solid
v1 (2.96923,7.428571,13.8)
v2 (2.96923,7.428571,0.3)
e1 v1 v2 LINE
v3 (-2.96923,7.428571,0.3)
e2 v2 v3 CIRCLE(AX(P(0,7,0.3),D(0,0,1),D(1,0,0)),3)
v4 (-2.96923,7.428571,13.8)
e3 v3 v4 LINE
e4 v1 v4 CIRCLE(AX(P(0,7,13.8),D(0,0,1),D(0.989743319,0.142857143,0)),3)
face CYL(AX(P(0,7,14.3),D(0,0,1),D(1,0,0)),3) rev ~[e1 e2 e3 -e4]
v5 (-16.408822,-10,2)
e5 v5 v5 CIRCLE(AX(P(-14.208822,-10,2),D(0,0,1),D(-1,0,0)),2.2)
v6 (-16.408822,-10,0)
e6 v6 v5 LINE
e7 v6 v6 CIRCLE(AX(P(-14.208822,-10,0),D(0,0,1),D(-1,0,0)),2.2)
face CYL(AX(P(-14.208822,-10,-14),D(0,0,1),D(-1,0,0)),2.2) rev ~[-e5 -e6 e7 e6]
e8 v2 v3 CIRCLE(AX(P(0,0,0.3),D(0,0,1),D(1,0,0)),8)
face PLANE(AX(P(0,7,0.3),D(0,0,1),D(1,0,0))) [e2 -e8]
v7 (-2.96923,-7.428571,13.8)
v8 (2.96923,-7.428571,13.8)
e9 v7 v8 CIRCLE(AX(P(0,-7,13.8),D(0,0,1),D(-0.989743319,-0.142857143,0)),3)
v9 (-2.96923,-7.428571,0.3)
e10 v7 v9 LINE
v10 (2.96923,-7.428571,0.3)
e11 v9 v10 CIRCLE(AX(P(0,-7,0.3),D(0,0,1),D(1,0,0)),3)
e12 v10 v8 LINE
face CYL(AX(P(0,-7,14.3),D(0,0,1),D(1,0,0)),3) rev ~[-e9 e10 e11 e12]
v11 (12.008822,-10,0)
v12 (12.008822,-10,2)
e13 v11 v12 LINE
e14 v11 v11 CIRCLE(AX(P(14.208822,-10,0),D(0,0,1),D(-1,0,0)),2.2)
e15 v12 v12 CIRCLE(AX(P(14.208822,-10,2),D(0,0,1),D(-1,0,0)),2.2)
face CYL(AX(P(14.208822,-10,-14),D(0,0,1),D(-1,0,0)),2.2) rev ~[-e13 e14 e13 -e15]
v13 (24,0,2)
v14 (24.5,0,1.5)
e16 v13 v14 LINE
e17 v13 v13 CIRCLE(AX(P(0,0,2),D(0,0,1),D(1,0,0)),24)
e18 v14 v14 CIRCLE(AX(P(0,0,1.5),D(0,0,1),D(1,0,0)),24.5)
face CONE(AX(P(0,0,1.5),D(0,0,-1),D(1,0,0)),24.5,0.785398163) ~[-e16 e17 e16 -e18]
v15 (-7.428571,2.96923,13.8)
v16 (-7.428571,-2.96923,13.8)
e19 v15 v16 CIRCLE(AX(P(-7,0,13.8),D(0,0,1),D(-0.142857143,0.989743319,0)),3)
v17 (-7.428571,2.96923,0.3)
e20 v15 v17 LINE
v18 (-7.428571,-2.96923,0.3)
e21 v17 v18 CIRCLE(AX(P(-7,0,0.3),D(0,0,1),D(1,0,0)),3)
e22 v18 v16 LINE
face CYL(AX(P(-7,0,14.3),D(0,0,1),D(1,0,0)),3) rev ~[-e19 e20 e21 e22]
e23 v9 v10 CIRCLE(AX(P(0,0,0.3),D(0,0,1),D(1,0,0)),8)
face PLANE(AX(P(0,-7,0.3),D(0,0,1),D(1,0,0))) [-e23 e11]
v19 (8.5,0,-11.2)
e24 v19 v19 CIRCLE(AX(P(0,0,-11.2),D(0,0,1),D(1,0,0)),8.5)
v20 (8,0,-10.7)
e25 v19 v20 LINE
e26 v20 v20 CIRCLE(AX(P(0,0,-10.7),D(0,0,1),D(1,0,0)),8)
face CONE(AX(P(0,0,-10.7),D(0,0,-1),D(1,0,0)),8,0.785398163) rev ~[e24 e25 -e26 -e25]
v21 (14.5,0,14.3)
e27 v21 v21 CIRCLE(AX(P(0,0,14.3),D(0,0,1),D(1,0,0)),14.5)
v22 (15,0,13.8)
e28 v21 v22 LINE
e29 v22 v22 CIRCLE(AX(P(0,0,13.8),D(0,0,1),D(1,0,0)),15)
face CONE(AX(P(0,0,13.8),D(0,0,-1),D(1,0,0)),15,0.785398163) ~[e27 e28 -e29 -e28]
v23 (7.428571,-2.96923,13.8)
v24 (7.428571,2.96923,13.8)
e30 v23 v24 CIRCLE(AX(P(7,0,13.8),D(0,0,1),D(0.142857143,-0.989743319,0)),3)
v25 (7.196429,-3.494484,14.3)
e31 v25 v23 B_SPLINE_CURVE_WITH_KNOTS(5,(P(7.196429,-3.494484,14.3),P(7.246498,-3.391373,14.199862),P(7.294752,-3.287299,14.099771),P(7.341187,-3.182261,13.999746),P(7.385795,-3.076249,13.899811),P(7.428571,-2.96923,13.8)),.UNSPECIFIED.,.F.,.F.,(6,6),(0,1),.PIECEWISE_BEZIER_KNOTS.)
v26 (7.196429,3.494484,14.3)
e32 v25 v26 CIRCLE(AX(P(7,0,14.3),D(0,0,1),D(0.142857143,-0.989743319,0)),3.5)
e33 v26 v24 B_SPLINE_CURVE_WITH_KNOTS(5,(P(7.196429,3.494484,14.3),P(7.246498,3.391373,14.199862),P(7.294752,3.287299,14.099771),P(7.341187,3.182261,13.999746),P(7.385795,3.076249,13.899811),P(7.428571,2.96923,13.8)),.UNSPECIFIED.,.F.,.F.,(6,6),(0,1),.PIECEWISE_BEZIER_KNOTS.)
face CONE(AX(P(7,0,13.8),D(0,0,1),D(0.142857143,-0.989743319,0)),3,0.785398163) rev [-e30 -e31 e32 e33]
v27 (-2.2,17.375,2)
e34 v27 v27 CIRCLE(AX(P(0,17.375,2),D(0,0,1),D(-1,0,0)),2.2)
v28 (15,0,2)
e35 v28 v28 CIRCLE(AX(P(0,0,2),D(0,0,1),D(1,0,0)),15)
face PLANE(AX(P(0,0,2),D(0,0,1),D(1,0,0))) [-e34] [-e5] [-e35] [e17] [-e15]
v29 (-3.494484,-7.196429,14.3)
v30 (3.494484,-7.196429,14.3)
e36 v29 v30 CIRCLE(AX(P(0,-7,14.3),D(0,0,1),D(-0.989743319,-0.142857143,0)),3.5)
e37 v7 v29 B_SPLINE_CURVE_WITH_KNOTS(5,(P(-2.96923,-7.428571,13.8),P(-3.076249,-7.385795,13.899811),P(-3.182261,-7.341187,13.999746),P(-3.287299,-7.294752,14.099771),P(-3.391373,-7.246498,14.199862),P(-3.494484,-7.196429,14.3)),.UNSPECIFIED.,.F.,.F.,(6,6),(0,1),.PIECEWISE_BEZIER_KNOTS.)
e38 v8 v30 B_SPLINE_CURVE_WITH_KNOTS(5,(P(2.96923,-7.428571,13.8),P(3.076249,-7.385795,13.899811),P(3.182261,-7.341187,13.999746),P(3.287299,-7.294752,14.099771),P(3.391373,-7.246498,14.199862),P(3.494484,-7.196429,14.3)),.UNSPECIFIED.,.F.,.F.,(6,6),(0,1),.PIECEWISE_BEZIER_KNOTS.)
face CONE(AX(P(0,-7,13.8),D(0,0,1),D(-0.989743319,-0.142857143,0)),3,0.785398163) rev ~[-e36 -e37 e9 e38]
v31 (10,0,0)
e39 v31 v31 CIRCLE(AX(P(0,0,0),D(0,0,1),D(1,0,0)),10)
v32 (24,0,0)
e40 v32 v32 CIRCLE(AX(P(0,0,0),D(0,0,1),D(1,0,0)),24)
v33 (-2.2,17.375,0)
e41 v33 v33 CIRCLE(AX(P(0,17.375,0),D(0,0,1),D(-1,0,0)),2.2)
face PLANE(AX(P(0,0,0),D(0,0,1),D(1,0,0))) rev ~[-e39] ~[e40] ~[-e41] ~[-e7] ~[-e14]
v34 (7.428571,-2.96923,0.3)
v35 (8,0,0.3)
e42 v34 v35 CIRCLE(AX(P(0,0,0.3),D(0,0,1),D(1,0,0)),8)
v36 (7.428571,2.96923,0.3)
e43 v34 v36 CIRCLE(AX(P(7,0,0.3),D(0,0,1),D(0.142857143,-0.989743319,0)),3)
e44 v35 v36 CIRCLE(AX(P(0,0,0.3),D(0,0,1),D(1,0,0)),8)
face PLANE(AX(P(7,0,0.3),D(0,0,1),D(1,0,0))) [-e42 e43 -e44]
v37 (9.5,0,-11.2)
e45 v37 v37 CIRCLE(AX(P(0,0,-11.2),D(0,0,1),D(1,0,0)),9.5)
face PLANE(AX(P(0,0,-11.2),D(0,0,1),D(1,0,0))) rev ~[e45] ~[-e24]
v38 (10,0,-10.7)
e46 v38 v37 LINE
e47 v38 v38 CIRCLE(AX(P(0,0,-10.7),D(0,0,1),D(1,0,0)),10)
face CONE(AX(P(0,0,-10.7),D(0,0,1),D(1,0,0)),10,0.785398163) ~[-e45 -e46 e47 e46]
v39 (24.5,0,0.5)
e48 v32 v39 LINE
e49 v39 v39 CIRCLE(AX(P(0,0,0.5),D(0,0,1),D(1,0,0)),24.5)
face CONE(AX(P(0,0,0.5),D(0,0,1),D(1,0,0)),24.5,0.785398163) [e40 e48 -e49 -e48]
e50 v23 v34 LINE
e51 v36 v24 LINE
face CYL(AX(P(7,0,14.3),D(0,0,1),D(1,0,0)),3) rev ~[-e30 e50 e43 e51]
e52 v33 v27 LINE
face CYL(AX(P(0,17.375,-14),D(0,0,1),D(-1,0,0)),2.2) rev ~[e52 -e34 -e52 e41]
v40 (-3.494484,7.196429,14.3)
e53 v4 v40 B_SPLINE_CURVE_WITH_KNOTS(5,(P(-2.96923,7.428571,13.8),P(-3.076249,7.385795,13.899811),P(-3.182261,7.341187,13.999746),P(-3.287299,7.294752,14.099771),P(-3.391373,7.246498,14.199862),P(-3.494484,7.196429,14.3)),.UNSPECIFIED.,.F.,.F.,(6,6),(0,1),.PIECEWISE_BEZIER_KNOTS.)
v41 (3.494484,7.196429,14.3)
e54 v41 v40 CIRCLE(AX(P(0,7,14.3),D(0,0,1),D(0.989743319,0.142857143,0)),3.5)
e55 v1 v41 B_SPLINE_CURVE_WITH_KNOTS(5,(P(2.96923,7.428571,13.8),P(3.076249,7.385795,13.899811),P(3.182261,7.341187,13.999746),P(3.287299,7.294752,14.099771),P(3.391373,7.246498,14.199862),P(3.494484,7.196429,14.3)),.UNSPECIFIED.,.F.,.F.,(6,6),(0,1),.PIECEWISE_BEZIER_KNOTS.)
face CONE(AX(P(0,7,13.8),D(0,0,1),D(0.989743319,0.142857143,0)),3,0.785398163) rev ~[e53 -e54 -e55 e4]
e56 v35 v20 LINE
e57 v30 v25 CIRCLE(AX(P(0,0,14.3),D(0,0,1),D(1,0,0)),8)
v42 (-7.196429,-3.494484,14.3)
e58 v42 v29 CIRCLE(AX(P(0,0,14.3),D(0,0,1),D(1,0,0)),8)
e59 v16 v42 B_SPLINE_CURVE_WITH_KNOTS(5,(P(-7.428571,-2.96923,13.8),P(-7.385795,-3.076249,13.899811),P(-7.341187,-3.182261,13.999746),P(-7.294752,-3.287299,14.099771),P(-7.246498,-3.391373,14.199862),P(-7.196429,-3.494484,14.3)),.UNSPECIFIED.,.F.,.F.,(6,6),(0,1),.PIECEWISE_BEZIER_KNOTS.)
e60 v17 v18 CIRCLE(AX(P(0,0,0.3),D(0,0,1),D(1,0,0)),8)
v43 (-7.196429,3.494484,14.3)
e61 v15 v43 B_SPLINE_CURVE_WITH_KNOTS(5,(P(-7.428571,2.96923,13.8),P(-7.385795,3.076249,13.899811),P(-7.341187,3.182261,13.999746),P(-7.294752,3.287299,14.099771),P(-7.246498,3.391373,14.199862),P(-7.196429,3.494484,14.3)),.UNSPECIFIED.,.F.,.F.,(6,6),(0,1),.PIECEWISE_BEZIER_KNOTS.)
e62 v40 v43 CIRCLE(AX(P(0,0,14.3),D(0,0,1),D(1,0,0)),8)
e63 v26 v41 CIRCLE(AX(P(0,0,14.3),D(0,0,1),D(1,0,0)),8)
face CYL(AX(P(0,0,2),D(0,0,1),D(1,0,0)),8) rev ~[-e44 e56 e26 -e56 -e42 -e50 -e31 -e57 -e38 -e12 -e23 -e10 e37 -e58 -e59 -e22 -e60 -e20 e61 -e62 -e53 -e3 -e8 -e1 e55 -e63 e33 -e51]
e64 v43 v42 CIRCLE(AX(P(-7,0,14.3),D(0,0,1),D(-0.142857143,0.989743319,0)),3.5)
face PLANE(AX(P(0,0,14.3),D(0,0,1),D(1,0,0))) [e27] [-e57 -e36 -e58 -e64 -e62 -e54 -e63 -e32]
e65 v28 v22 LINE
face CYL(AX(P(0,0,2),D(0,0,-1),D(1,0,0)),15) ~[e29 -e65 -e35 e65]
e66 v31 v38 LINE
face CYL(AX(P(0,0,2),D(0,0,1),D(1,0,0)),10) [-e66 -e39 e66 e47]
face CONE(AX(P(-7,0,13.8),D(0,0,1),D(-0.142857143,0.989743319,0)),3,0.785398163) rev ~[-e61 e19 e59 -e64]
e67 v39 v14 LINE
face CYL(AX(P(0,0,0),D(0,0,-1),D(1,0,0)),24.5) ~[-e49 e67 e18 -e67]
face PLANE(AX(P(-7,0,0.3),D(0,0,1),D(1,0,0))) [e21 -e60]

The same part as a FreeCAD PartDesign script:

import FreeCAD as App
import Part
import Sketcher

V = App.Vector
Q = App.Units.Quantity


def edges_at(feature, points):
    """Names of the edges that pass closest to the given points."""
    edges = feature.Shape.Edges
    near = lambda p: min(range(len(edges)), key=lambda i: edges[i].distToShape(Part.Vertex(*p))[0])
    return sorted({f"Edge{near(p) + 1}" for p in points})

doc = App.newDocument("Part")
body = doc.addObject("PartDesign::Body", "Body")

sketch1 = body.newObject("Sketcher::SketchObject", "Sketch")
sketch1.AttachmentSupport = (doc.getObject("XY_Plane"), [""])
sketch1.MapMode = "FlatFace"
sketch1.addGeometry([
    Part.Circle(V(0, 0, 0), V(0, 0, 1), 24),
    Part.Circle(V(0, 0, 0), V(0, 0, 1), 10),
], False)
sketch1.addConstraint([
    Sketcher.Constraint("Coincident", 0, 3, -1, 1),
    Sketcher.Constraint("Coincident", 1, 3, -1, 1),
    Sketcher.Constraint("Diameter", 0, Q("49 mm")),
    Sketcher.Constraint("Diameter", 1, Q("20 mm")),
])
pad1 = body.newObject("PartDesign::Pad", "Pad")
pad1.Profile = sketch1
pad1.Length = 2

sketch2 = body.newObject("Sketcher::SketchObject", "Sketch001")
sketch2.AttachmentSupport = (doc.getObject("XY_Plane"), [""])
sketch2.MapMode = "FlatFace"
sketch2.AttachmentOffset = App.Placement(V(0, 0, 2), App.Rotation())
sketch2.addGeometry([
    Part.Circle(V(0, 0, 0), V(0, 0, 1), 15),
    Part.Circle(V(0, 0, 0), V(0, 0, 1), 8),
], False)
sketch2.addConstraint([
    Sketcher.Constraint("Coincident", 0, 3, -1, 1),
    Sketcher.Constraint("Coincident", 1, 3, -1, 1),
    Sketcher.Constraint("Diameter", 0, Q("30 mm")),
    Sketcher.Constraint("Diameter", 1, Q("16 mm")),
])
pad2 = body.newObject("PartDesign::Pad", "Pad001")
pad2.Profile = sketch2
pad2.Length = 12.3

sketch3 = body.newObject("Sketcher::SketchObject", "Sketch002")
sketch3.AttachmentSupport = (doc.getObject("XY_Plane"), [""])
sketch3.MapMode = "FlatFace"
sketch3.AttachmentOffset = App.Placement(V(0, 0, 2), App.Rotation())
sketch3.addGeometry([
    Part.Circle(V(0, 0, 0), V(0, 0, 1), 10),
    Part.Circle(V(0, 0, 0), V(0, 0, 1), 8),
], False)
sketch3.addConstraint([
    Sketcher.Constraint("Coincident", 0, 3, -1, 1),
    Sketcher.Constraint("Coincident", 1, 3, -1, 1),
    Sketcher.Constraint("Diameter", 0, Q("20 mm")),
    Sketcher.Constraint("Diameter", 1, Q("16 mm")),
])
pad3 = body.newObject("PartDesign::Pad", "Pad002")
pad3.Profile = sketch3
pad3.Length = 13.2
pad3.Reversed = True

sketch4 = body.newObject("Sketcher::SketchObject", "Sketch003")
sketch4.AttachmentSupport = (doc.getObject("XY_Plane"), [""])
sketch4.MapMode = "FlatFace"
sketch4.addGeometry([
    Part.Circle(V(0, 17.4, 0), V(0, 0, 1), 2.2),
    Part.Circle(V(-14.2, -10, 0), V(0, 0, 1), 2.2),
    Part.Circle(V(14.2, -10, 0), V(0, 0, 1), 2.2),
], False)
sketch4.addConstraint([
    Sketcher.Constraint("Equal", 0, 1),
    Sketcher.Constraint("Equal", 1, 2),
    Sketcher.Constraint("Symmetric", 1, 3, 2, 3, -2),
    Sketcher.Constraint("PointOnObject", 0, 3, -2),
    Sketcher.Constraint("Diameter", 0, Q("4.4 mm")),
    Sketcher.Constraint("DistanceY", 1, 3, -1, 1, Q("10 mm")),
    Sketcher.Constraint("DistanceY", -1, 1, 0, 3, Q("17.375 mm")),
    Sketcher.Constraint("DistanceX", 1, 3, -1, 1, Q("14.208822 mm")),
])
doc.recompute()
hole = body.newObject("PartDesign::Hole", "Hole")
hole.Profile = sketch4
hole.ThreadType = "None"
hole.Diameter = 4.4
hole.DepthType = "Dimension"
hole.Depth = 14
hole.DrillPoint = "Angled"
hole.DrillPointAngle = 118
hole.Reversed = True

sketch5 = body.newObject("Sketcher::SketchObject", "Sketch004")
sketch5.AttachmentSupport = (doc.getObject("XY_Plane"), [""])
sketch5.MapMode = "FlatFace"
sketch5.AttachmentOffset = App.Placement(V(0, 0, 14.3), App.Rotation())
sketch5.addGeometry([
    Part.Circle(V(0, 7, 0), V(0, 0, 1), 3),
    Part.Circle(V(-7, 0, 0), V(0, 0, 1), 3),
    Part.Circle(V(7, 0, 0), V(0, 0, 1), 3),
    Part.Circle(V(0, -7, 0), V(0, 0, 1), 3),
], False)
sketch5.addConstraint([
    Sketcher.Constraint("Equal", 0, 1),
    Sketcher.Constraint("Equal", 1, 2),
    Sketcher.Constraint("Equal", 2, 3),
    Sketcher.Constraint("Symmetric", 1, 3, 2, 3, -1, 1),
    Sketcher.Constraint("Symmetric", 0, 3, 3, 3, -1, 1),
    Sketcher.Constraint("PointOnObject", 0, 3, -2),
    Sketcher.Constraint("PointOnObject", 1, 3, -1),
    Sketcher.Constraint("Diameter", 0, Q("6 mm")),
    Sketcher.Constraint("DistanceY", -1, 1, 0, 3, Q("7 mm")),
    Sketcher.Constraint("DistanceX", 1, 3, -1, 1, Q("7 mm")),
])
pocket1 = body.newObject("PartDesign::Pocket", "Pocket")
pocket1.Profile = sketch5
pocket1.Length = 14
doc.recompute()

chamfer = body.newObject("PartDesign::Chamfer", "Chamfer")
chamfer.Base = (pocket1, edges_at(pocket1, [
    (-10, 0, 14.3),
    (0, 10, 14.3),
    (10, 0, 14.3),
    (0, -10, 14.3),
    (-15, 0, 14.3),
    (-24.5, 0, 2),
    (-10, 0, -11.2),
    (-8, 0, -11.2),
]))
chamfer.Size = 0.5
doc.recompute()

chamfer2 = body.newObject("PartDesign::Chamfer", "Chamfer001")
chamfer2.Base = (chamfer, edges_at(chamfer, [(-24.5, 0, 0)]))
chamfer2.Size = 0.5

doc.recompute()
